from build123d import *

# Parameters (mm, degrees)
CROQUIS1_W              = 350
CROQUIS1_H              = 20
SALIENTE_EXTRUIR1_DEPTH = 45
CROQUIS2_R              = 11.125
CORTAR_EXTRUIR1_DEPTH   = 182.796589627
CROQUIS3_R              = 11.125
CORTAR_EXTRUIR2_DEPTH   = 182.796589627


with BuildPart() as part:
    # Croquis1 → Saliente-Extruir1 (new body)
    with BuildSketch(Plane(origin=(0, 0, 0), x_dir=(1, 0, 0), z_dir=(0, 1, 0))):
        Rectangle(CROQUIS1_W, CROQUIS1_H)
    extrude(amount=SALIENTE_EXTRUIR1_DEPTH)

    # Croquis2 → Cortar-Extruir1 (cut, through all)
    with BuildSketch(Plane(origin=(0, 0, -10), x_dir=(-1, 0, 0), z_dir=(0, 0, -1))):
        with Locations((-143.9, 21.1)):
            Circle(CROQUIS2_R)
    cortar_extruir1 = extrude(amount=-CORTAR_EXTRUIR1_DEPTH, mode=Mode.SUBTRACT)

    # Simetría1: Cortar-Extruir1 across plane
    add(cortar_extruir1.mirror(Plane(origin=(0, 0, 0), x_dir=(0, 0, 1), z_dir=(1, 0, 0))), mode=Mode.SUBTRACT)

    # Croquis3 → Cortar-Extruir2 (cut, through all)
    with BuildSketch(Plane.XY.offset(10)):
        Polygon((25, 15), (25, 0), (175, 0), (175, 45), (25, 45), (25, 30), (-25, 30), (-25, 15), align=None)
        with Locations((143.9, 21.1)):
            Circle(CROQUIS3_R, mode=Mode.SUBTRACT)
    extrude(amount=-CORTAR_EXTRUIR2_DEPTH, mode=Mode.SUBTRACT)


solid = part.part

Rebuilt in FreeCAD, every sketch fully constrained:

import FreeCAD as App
import Part
import Sketcher
from FreeCAD import Vector

doc = App.newDocument("Part")
body = doc.addObject("PartDesign::Body", "Body")

sketch1 = body.newObject("Sketcher::SketchObject", "Sketch")
sketch1.AttachmentSupport = (doc.getObject("XZ_Plane"), [""])
sketch1.MapMode = "FlatFace"
sketch1.addGeometry([
    Part.LineSegment(Vector(-175, -10, 0), Vector(-175, 10, 0)),
    Part.LineSegment(Vector(-175, 10, 0), Vector(175, 10, 0)),
    Part.LineSegment(Vector(175, 10, 0), Vector(175, -10, 0)),
    Part.LineSegment(Vector(175, -10, 0), Vector(-175, -10, 0)),
], False)
sketch1.addConstraint([
    Sketcher.Constraint("Coincident", 0, 2, 1, 1),
    Sketcher.Constraint("Coincident", 1, 2, 2, 1),
    Sketcher.Constraint("Coincident", 2, 2, 3, 1),
    Sketcher.Constraint("Coincident", 3, 2, 0, 1),
    Sketcher.Constraint("Vertical", 0),
    Sketcher.Constraint("Horizontal", 1),
    Sketcher.Constraint("Vertical", 2),
    Sketcher.Constraint("Horizontal", 3),
    Sketcher.Constraint("Symmetric", 0, 2, 2, 2, -1, 1),
    Sketcher.Constraint("DistanceX", 1, 1, 1, 2, 350.0),
    Sketcher.Constraint("DistanceY", 0, 1, 0, 2, 20.0),
])
pad1 = body.newObject("PartDesign::Pad", "Pad")
pad1.Profile = sketch1
pad1.Length = 45
pad1.Reversed = True

sketch2 = body.newObject("Sketcher::SketchObject", "Sketch001")
sketch2.AttachmentSupport = (doc.getObject("XY_Plane"), [""])
sketch2.MapMode = "FlatFace"
sketch2.AttachmentOffset = App.Placement(Vector(0, 0, -10), App.Rotation())
sketch2.addGeometry(Part.Circle(Vector(144, 21, 0), Vector(0, 0, 1), 11), False)
sketch2.addConstraint([
    Sketcher.Constraint("Diameter", 0, 22.25),
    Sketcher.Constraint("DistanceX", -1, 1, 0, 3, 143.9),
    Sketcher.Constraint("DistanceY", -1, 1, 0, 3, 21.1),
])
pocket1 = body.newObject("PartDesign::Pocket", "Pocket")
pocket1.Profile = sketch2
pocket1.Type = "ThroughAll"
pocket1.Reversed = True
doc.recompute()

mirrored = body.newObject("PartDesign::Mirrored", "Mirrored")
mirrored.Originals = [pocket1]
mirrored.MirrorPlane = (doc.getObject("YZ_Plane"), [""])
body.Tip = mirrored

sketch3 = body.newObject("Sketcher::SketchObject", "Sketch002")
sketch3.AttachmentSupport = (doc.getObject("XY_Plane"), [""])
sketch3.MapMode = "FlatFace"
sketch3.AttachmentOffset = App.Placement(Vector(0, 0, 10), App.Rotation())
sketch3.addGeometry([
    Part.LineSegment(Vector(25, 15, 0), Vector(25, 0, 0)),
    Part.LineSegment(Vector(25, 0, 0), Vector(175, 0, 0)),
    Part.LineSegment(Vector(175, 0, 0), Vector(175, 45, 0)),
    Part.LineSegment(Vector(175, 45, 0), Vector(25, 45, 0)),
    Part.LineSegment(Vector(25, 45, 0), Vector(25, 30, 0)),
    Part.LineSegment(Vector(25, 30, 0), Vector(-25, 30, 0)),
    Part.LineSegment(Vector(-25, 30, 0), Vector(-25, 15, 0)),
    Part.LineSegment(Vector(-25, 15, 0), Vector(25, 15, 0)),
    Part.Circle(Vector(144, 21, 0), Vector(0, 0, 1), 11),
], False)
sketch3.addConstraint([
    Sketcher.Constraint("Coincident", 0, 2, 1, 1),
    Sketcher.Constraint("Coincident", 1, 2, 2, 1),
    Sketcher.Constraint("Coincident", 2, 2, 3, 1),
    Sketcher.Constraint("Coincident", 3, 2, 4, 1),
    Sketcher.Constraint("Coincident", 4, 2, 5, 1),
    Sketcher.Constraint("Coincident", 5, 2, 6, 1),
    Sketcher.Constraint("Coincident", 6, 2, 7, 1),
    Sketcher.Constraint("Coincident", 7, 2, 0, 1),
    Sketcher.Constraint("Vertical", 0),
    Sketcher.Constraint("Horizontal", 1),
    Sketcher.Constraint("Vertical", 2),
    Sketcher.Constraint("Horizontal", 3),
    Sketcher.Constraint("Vertical", 4),
    Sketcher.Constraint("Horizontal", 5),
    Sketcher.Constraint("Vertical", 6),
    Sketcher.Constraint("Horizontal", 7),
    Sketcher.Constraint("PointOnObject", 0, 2, -1),
    Sketcher.Constraint("Vertical", 0, 2, 3, 2),
    Sketcher.Constraint("Equal", 0, 4),
    Sketcher.Constraint("Equal", 4, 6),
    Sketcher.Constraint("Diameter", 8, 22.25),
    Sketcher.Constraint("DistanceX", 1, 1, 1, 2, 150.0),
    Sketcher.Constraint("DistanceX", 5, 2, 5, 1, 50.0),
    Sketcher.Constraint("DistanceY", 0, 2, 0, 1, 15.0),
    Sketcher.Constraint("DistanceX", -1, 1, 0, 2, 25.0),
    Sketcher.Constraint("DistanceX", -1, 1, 8, 3, 143.9),
    Sketcher.Constraint("DistanceY", -1, 1, 8, 3, 21.1),
])
pocket2 = body.newObject("PartDesign::Pocket", "Pocket001")
pocket2.Profile = sketch3
pocket2.Type = "ThroughAll"

doc.recompute()
